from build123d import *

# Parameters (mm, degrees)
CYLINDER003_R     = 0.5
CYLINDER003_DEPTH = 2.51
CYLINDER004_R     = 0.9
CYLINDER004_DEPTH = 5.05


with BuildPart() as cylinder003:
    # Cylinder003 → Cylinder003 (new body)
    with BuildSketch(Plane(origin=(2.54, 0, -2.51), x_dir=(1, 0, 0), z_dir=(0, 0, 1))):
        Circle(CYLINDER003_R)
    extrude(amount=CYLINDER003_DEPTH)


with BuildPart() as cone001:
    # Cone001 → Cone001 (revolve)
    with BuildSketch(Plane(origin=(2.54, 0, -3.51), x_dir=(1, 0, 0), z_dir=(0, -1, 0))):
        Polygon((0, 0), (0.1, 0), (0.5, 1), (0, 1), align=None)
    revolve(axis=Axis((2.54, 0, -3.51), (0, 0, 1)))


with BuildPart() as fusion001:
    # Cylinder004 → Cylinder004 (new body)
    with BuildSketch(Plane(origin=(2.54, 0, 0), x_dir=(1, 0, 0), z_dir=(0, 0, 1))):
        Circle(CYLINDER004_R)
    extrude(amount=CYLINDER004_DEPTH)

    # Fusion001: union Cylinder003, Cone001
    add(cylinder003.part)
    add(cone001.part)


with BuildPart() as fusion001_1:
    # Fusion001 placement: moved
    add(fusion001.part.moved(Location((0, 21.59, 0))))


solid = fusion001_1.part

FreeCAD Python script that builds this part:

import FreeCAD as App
import Part
import Sketcher

doc = App.newDocument("Part")
params = doc.addObject("Spreadsheet::Sheet", "Params")
for row, (alias, value) in enumerate([
    ("sketch1_diameter", "1 mm"),
    ("pad1_length", "2.51 mm"),
    ("sketch2_height", "1 mm"),
    ("sketch2_width", "0.1 mm"),
    ("sketch2_width2", "0.5 mm"),
    ("revolution_angle", "360 deg"),
    ("sketch3_diameter", "1.8 mm"),
    ("pad2_length", "5.05 mm"),
], start=1):
    params.set(f"A{row}", alias)
    params.set(f"B{row}", "=" + value)
    params.setAlias(f"B{row}", alias)

body = doc.addObject("PartDesign::Body", "Body")

# Sketch on XY plane
sketch1 = doc.addObject("Sketcher::SketchObject", "Sketch")
body.addObject(sketch1)
sketch1.AttachmentSupport = (doc.XY_Plane, [""])
sketch1.MapMode = "FlatFace"
sketch1.AttachmentOffset = App.Placement(App.Vector(0, 0, -2.51), App.Rotation())
sketch1.addGeometry(Part.Circle(App.Vector(2.5, 0, 0), App.Vector(0, 0, 1), 0.5), False)
sketch1.addConstraint([
    Sketcher.Constraint("PointOnObject", 0, 3, -1),
    Sketcher.Constraint("Diameter", 0, 1.0),
    Sketcher.Constraint("DistanceX", -1, 1, 0, 3, 2.54),
])
sketch1.setExpression("Constraints[1]", "Params.sketch1_diameter")
pad1 = doc.addObject("PartDesign::Pad", "Pad")
body.addObject(pad1)
pad1.Profile = sketch1
pad1.setExpression("Length", "Params.pad1_length")
body2 = doc.addObject("PartDesign::Body", "Body001")

# Sketch on XZ plane
sketch2 = doc.addObject("Sketcher::SketchObject", "Sketch001")
body2.addObject(sketch2)
sketch2.AttachmentSupport = (doc.getObject("XZ_Plane001"), [""])
sketch2.MapMode = "FlatFace"
sketch2.addGeometry([
    Part.LineSegment(App.Vector(2.54, -3.51, 0), App.Vector(2.64, -3.51, 0)),
    Part.LineSegment(App.Vector(2.64, -3.51, 0), App.Vector(3.04, -2.51, 0)),
    Part.LineSegment(App.Vector(3.04, -2.51, 0), App.Vector(2.54, -2.51, 0)),
    Part.LineSegment(App.Vector(2.54, -2.51, 0), App.Vector(2.54, -3.51, 0)),
], False)
sketch2.addGeometry(Part.LineSegment(App.Vector(2.54, -3.51, 0), App.Vector(2.54, -2.51, 0)), True)  # axis
sketch2.addConstraint([
    Sketcher.Constraint("Coincident", 0, 2, 1, 1),
    Sketcher.Constraint("Coincident", 1, 2, 2, 1),
    Sketcher.Constraint("Coincident", 2, 2, 3, 1),
    Sketcher.Constraint("Coincident", 3, 2, 0, 1),
    Sketcher.Constraint("Horizontal", 0),
    Sketcher.Constraint("Horizontal", 2),
    Sketcher.Constraint("Vertical", 3),
    Sketcher.Constraint("Vertical", 4),
    Sketcher.Constraint("Coincident", 4, 1, 3, 2),
    Sketcher.Constraint("Horizontal", 1, 2, 4, 2),
    Sketcher.Constraint("DistanceY", 3, 2, 3, 1, 1.0),
    Sketcher.Constraint("DistanceX", 0, 1, 0, 2, 0.1),
    Sketcher.Constraint("DistanceX", 2, 2, 2, 1, 0.5),
    Sketcher.Constraint("DistanceX", -1, 1, 0, 2, 2.64),
    Sketcher.Constraint("DistanceY", 0, 2, -1, 1, 3.51),
])
sketch2.setExpression("Constraints[10]", "Params.sketch2_height")
sketch2.setExpression("Constraints[11]", "Params.sketch2_width")
sketch2.setExpression("Constraints[12]", "Params.sketch2_width2")
revolution = doc.addObject("PartDesign::Revolution", "Revolution")
body2.addObject(revolution)
revolution.Profile = sketch2
revolution.ReferenceAxis = (sketch2, ["Axis0"])
revolution.setExpression("Angle", "Params.revolution_angle")
body3 = doc.addObject("PartDesign::Body", "Body002")

# Sketch on XY plane
sketch3 = doc.addObject("Sketcher::SketchObject", "Sketch002")
body3.addObject(sketch3)
sketch3.AttachmentSupport = (doc.getObject("XY_Plane002"), [""])
sketch3.MapMode = "FlatFace"
sketch3.addGeometry(Part.Circle(App.Vector(2.5, 0, 0), App.Vector(0, 0, 1), 0.9), False)
sketch3.addConstraint([
    Sketcher.Constraint("PointOnObject", 0, 3, -1),
    Sketcher.Constraint("Diameter", 0, 1.8),
    Sketcher.Constraint("DistanceX", -1, 1, 0, 3, 2.54),
])
sketch3.setExpression("Constraints[1]", "Params.sketch3_diameter")
pad2 = doc.addObject("PartDesign::Pad", "Pad001")
body3.addObject(pad2)
pad2.Profile = sketch3
pad2.setExpression("Length", "Params.pad2_length")
doc.recompute()

boolean = doc.addObject("PartDesign::Boolean", "Boolean")
body3.addObject(boolean)
boolean.Type = "Fuse"
boolean.addObjects([body])
doc.recompute()

boolean2 = doc.addObject("PartDesign::Boolean", "Boolean001")
body3.addObject(boolean2)
boolean2.Type = "Fuse"
boolean2.addObjects([body2])
body4 = doc.addObject("PartDesign::Body", "Body003")
doc.recompute()

body3.Placement = App.Placement(App.Vector(0, 21.59, 0), App.Rotation(App.Vector(0, 0, 1), 0))
boolean3 = doc.addObject("PartDesign::Boolean", "Boolean002")
body4.addObject(boolean3)
boolean3.Type = "Fuse"
boolean3.addObjects([body3])

doc.recompute()
